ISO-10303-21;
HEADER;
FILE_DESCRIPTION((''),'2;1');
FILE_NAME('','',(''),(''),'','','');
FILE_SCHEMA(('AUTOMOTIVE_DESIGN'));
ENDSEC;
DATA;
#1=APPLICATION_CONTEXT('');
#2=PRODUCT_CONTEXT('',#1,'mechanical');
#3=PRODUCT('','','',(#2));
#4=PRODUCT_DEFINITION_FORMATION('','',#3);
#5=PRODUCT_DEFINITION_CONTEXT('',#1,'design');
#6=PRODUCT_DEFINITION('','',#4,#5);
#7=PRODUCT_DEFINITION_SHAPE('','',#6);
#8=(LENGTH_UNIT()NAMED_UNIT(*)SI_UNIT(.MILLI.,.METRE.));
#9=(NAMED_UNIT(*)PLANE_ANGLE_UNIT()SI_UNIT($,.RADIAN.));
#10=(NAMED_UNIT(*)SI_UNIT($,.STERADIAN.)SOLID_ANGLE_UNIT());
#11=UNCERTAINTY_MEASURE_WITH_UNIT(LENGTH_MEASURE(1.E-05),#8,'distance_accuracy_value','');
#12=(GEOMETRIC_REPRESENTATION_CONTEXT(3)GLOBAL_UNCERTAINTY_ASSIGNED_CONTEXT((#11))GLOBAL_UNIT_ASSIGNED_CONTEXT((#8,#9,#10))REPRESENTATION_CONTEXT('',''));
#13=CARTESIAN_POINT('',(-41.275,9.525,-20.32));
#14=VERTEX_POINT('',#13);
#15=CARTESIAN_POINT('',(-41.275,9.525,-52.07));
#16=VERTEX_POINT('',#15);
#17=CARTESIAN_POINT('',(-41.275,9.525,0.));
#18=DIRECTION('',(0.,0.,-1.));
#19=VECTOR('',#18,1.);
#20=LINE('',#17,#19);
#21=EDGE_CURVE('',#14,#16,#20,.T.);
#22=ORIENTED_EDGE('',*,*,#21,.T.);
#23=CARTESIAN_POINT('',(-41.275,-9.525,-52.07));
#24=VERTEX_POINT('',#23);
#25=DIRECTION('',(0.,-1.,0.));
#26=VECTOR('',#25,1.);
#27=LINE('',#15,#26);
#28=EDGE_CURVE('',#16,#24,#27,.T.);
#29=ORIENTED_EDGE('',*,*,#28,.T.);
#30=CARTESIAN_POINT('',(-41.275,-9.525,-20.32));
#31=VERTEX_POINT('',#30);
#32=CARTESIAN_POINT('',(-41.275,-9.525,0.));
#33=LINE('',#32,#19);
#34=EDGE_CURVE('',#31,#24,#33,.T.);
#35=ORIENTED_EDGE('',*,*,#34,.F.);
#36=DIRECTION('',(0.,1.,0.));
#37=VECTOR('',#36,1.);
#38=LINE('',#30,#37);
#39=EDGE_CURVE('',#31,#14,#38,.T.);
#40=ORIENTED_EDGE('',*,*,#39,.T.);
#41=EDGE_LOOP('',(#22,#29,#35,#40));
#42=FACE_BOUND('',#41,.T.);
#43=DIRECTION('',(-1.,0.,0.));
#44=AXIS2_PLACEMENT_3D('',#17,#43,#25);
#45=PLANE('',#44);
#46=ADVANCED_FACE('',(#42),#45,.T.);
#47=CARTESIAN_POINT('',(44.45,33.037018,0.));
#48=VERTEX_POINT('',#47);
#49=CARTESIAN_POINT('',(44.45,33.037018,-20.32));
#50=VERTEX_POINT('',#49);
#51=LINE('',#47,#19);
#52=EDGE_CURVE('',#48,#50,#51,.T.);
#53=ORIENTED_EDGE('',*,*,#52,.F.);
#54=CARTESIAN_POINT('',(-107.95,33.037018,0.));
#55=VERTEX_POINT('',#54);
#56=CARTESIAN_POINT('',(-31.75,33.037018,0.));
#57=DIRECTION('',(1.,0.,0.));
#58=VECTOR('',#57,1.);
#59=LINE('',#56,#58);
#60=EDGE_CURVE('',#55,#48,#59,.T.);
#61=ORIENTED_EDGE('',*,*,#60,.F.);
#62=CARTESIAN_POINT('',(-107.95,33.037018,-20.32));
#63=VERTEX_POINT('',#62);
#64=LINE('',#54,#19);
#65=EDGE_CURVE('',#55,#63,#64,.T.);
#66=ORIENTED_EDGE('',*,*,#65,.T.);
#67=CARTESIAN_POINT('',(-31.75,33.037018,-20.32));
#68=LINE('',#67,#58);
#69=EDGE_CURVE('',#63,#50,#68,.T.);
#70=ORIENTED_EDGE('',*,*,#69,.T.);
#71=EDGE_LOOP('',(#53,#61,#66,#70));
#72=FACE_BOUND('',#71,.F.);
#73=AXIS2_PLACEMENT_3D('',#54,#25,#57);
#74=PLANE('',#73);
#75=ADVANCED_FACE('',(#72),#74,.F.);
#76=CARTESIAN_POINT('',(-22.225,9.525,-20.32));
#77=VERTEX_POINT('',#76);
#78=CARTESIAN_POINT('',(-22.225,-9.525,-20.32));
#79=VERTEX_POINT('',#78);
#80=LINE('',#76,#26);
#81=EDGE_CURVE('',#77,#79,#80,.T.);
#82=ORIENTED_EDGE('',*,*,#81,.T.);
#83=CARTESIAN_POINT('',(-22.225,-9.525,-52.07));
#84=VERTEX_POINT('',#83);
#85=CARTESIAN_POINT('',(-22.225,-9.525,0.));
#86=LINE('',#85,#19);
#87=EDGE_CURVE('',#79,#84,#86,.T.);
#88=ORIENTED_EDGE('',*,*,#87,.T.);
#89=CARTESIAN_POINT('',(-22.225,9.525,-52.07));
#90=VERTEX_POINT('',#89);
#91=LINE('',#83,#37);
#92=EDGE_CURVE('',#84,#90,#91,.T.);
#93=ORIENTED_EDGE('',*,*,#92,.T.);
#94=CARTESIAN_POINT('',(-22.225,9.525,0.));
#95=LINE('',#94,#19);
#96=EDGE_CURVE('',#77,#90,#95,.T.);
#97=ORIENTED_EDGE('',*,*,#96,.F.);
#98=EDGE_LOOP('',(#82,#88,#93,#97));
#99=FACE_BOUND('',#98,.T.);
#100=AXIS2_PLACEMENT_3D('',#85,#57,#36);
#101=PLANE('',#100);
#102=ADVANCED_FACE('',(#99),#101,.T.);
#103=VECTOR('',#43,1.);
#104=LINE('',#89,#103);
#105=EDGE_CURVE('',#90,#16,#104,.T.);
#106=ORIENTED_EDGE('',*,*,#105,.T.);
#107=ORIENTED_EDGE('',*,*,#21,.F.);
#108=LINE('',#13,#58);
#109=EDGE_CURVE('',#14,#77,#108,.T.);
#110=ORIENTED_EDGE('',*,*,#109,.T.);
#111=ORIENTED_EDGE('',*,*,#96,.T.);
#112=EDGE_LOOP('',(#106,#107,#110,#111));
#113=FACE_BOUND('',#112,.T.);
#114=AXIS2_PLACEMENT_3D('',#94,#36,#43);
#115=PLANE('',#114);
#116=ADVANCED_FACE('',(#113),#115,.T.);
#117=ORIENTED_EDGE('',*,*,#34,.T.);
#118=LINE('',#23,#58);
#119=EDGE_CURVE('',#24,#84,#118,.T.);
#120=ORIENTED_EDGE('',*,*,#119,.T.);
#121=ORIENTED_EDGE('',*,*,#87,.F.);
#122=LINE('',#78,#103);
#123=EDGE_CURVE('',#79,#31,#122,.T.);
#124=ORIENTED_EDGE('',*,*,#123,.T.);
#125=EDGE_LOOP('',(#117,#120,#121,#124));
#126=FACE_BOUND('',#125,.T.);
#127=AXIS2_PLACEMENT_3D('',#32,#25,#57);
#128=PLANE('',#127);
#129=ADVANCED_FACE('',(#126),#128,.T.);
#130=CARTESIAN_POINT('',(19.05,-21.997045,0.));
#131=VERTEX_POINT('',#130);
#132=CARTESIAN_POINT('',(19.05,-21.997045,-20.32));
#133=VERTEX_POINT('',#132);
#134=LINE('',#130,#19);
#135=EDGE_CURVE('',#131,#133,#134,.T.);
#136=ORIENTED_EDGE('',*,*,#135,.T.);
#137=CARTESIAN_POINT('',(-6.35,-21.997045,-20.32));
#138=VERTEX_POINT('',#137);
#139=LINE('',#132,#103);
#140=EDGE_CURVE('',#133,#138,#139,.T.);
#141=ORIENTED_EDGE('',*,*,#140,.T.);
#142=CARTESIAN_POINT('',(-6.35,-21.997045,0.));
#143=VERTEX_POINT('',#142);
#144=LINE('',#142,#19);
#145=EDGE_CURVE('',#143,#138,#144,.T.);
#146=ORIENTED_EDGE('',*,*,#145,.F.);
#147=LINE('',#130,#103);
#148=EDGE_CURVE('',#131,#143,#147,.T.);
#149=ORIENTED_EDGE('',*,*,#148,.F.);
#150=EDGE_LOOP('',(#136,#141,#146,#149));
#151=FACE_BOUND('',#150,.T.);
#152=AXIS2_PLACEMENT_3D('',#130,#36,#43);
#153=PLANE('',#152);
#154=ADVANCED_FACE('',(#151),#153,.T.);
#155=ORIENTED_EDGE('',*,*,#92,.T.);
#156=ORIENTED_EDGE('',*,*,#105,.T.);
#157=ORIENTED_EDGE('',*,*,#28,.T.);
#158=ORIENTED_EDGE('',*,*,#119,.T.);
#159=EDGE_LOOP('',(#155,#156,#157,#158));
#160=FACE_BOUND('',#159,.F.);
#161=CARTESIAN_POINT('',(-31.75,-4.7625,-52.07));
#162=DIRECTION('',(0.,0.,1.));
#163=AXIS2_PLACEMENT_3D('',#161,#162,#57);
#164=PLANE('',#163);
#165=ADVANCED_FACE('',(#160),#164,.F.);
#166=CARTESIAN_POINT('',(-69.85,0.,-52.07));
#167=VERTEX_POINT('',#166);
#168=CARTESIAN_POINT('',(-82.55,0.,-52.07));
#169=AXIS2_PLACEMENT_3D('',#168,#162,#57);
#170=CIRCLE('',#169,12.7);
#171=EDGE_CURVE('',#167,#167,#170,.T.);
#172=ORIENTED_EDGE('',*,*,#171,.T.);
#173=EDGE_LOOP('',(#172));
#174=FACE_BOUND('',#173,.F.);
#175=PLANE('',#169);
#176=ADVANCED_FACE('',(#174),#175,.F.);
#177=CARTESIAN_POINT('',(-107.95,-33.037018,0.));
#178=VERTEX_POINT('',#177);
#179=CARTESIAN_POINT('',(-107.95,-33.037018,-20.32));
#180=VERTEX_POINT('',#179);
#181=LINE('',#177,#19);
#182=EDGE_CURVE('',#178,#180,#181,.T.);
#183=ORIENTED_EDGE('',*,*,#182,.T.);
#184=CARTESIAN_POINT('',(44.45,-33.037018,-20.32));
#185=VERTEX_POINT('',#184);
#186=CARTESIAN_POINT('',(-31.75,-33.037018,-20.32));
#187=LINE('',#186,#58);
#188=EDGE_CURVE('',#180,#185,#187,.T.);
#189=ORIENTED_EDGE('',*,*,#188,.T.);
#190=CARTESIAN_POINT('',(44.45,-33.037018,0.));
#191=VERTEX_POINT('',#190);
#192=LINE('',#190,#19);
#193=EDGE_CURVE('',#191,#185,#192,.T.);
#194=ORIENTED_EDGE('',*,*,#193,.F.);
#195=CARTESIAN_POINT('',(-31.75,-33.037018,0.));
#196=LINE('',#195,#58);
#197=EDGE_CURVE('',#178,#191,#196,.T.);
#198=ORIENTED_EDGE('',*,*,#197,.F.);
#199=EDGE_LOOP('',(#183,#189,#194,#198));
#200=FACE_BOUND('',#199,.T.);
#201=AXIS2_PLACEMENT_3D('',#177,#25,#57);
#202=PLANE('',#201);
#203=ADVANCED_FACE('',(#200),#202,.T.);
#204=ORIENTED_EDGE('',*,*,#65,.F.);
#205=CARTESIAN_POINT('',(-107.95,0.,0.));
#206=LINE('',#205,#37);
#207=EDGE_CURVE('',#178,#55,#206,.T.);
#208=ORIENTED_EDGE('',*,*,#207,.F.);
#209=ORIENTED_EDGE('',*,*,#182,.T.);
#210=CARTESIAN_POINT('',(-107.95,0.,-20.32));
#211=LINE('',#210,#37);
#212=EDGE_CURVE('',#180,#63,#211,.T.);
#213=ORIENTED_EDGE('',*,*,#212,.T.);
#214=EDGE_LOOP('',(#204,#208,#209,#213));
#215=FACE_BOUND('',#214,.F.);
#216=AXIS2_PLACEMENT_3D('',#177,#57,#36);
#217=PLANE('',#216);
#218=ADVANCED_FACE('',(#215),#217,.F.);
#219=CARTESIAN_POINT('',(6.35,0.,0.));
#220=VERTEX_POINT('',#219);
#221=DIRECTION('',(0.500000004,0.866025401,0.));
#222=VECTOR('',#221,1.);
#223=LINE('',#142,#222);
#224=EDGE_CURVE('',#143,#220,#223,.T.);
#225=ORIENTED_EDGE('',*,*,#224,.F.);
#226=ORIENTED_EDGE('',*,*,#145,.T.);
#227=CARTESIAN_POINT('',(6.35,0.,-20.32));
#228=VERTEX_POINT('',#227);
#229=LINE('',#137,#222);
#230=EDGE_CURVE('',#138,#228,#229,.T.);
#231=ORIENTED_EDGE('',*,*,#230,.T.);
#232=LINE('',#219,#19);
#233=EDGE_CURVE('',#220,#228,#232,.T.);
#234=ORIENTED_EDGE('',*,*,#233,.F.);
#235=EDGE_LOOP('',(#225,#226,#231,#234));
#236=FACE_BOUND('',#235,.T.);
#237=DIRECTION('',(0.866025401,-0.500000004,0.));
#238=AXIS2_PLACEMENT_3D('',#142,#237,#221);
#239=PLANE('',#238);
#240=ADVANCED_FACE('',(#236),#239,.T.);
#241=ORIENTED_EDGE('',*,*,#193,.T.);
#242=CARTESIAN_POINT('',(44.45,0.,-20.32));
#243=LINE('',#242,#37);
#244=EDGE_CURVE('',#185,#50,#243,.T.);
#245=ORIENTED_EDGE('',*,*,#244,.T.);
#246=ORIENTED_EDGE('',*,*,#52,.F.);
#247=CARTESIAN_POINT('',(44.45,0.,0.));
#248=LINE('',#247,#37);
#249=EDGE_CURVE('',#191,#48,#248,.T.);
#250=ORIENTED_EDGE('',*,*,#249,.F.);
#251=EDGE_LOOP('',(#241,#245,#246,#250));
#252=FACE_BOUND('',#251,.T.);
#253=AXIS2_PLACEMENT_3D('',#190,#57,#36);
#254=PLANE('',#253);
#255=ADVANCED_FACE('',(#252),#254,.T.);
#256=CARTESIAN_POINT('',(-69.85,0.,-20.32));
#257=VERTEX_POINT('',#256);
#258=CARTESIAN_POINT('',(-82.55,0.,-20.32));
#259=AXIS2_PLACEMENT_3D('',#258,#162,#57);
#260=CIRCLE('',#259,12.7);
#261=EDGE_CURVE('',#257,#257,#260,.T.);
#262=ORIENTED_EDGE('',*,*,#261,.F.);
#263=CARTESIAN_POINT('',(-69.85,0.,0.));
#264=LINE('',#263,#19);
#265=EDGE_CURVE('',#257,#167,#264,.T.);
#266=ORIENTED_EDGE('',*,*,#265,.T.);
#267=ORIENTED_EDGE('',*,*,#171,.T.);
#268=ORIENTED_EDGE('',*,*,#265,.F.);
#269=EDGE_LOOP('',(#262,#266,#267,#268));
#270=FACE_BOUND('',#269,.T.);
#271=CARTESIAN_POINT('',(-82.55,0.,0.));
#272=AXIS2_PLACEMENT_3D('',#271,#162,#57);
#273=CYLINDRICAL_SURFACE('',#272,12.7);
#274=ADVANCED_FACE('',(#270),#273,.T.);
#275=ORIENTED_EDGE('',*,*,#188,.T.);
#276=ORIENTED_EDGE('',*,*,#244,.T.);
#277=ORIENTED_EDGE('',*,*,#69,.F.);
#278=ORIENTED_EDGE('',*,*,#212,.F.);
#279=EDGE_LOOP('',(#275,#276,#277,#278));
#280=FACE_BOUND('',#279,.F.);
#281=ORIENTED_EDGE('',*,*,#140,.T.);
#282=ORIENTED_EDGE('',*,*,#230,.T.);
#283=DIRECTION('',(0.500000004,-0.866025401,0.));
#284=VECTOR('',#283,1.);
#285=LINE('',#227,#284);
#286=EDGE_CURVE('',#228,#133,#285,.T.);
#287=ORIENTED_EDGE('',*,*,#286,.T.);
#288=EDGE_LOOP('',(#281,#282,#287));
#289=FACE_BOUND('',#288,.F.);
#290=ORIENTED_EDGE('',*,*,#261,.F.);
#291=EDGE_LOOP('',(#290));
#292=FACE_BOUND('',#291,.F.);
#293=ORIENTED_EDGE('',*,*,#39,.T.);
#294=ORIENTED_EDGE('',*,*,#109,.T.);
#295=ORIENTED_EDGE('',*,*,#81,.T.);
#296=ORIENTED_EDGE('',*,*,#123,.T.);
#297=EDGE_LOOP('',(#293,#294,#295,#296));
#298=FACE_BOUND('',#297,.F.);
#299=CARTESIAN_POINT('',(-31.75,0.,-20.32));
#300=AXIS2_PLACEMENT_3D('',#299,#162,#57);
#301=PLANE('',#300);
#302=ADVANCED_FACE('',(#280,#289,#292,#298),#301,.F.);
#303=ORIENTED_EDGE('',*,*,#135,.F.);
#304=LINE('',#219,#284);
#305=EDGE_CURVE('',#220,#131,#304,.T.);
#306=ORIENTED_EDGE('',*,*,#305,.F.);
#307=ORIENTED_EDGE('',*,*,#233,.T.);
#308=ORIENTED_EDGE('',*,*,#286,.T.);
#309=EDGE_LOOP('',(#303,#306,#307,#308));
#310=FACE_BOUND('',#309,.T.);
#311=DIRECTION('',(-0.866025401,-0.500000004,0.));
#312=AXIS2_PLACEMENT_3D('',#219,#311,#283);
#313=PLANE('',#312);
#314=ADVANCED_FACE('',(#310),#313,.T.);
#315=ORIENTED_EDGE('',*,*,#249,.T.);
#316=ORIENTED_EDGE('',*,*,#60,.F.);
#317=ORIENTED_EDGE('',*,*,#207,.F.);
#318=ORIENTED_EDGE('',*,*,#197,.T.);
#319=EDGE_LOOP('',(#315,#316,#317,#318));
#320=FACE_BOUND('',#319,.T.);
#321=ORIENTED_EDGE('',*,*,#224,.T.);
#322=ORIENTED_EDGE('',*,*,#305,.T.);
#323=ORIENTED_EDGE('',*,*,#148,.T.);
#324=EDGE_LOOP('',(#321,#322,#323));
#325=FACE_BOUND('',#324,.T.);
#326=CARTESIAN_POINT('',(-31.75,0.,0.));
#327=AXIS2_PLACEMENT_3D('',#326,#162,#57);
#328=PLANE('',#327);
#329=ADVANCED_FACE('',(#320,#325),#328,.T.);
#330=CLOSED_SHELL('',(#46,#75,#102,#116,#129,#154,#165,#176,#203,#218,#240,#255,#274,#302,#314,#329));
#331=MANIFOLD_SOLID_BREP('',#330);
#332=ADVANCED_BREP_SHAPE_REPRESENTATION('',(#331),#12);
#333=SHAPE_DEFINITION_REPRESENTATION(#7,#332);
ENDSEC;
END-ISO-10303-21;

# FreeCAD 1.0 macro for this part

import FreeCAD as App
import Part
import Sketcher

V = App.Vector
Q = App.Units.Quantity

doc = App.newDocument("Part")
body = doc.addObject("PartDesign::Body", "Body")

# Sketch on XY plane
sketch1 = doc.addObject("Sketcher::SketchObject", "Sketch")
body.addObject(sketch1)
sketch1.AttachmentSupport = (doc.XY_Plane, [""])
sketch1.MapMode = "FlatFace"
sketch1.addGeometry([
    Part.LineSegment(V(-108, 33, 0), V(-108, -33, 0)),  # 0
    Part.LineSegment(V(-108, -33, 0), V(44, -33, 0)),  # 1
    Part.LineSegment(V(44, -33, 0), V(44, 33, 0)),  # 2
    Part.LineSegment(V(44, 33, 0), V(-108, 33, 0)),  # 3
    Part.LineSegment(V(19, -22, 0), V(-6, -22, 0)),  # 4
    Part.LineSegment(V(-6, -22, 0), V(6, 0, 0)),  # 5
    Part.LineSegment(V(6, 0, 0), V(19, -22, 0)),  # 6
    Part.Circle(V(-83, 0, 0), V(0, 0, 1), 13),  # 7
    Part.LineSegment(V(-41, 10, 0), V(-22, 10, 0)),  # 8
    Part.LineSegment(V(-22, 10, 0), V(-22, -10, 0)),  # 9
    Part.LineSegment(V(-22, -10, 0), V(-41, -10, 0)),  # 10
    Part.LineSegment(V(-41, -10, 0), V(-41, 10, 0)),  # 11
], False)
sketch1.addConstraint([
    Sketcher.Constraint("Coincident", 0, 2, 1, 1),
    Sketcher.Constraint("Coincident", 1, 2, 2, 1),
    Sketcher.Constraint("Coincident", 2, 2, 3, 1),
    Sketcher.Constraint("Coincident", 3, 2, 0, 1),
    Sketcher.Constraint("Coincident", 4, 2, 5, 1),
    Sketcher.Constraint("Coincident", 5, 2, 6, 1),
    Sketcher.Constraint("Coincident", 6, 2, 4, 1),
    Sketcher.Constraint("Coincident", 8, 2, 9, 1),
    Sketcher.Constraint("Coincident", 9, 2, 10, 1),
    Sketcher.Constraint("Coincident", 10, 2, 11, 1),
    Sketcher.Constraint("Coincident", 11, 2, 8, 1),
    Sketcher.Constraint("Vertical", 0),
    Sketcher.Constraint("Horizontal", 1),
    Sketcher.Constraint("Vertical", 2),
    Sketcher.Constraint("Horizontal", 3),
    Sketcher.Constraint("Horizontal", 4),
    Sketcher.Constraint("Horizontal", 8),
    Sketcher.Constraint("Vertical", 9),
    Sketcher.Constraint("Horizontal", 10),
    Sketcher.Constraint("Vertical", 11),
    Sketcher.Constraint("PointOnObject", 7, 3, -1),
    Sketcher.Constraint("PointOnObject", 5, 2, -1),
    Sketcher.Constraint("Equal", 10, 9),
    Sketcher.Constraint("Equal", 5, 6),
    Sketcher.Constraint("Diameter", 7, Q("1 in")),
    Sketcher.Constraint("DistanceX", 1, 1, 1, 2, Q("6 in")),
    Sketcher.Constraint("DistanceX", 4, 2, 4, 1, Q("1 in")),
    Sketcher.Constraint("Distance", 5, Q("1 in")),
    Sketcher.Constraint("DistanceX", 0, 2, 7, 3, Q("1 in")),
    Sketcher.Constraint("DistanceX", 4, 2, 1, 2, Q("2 in")),
    Sketcher.Constraint("DistanceX", 8, 1, 8, 2, Q("0.75 in")),
    Sketcher.Constraint("DistanceX", 7, 3, -1, 1, Q("3.25 in")),
    Sketcher.Constraint("DistanceX", 8, 2, -1, 1, Q("0.875 in")),
    Sketcher.Constraint("DistanceY", -1, 1, 8, 2, Q("0.375 in")),
    Sketcher.Constraint("DistanceY", 0, 2, 0, 1, Q("66.074036 mm")),
    Sketcher.Constraint("DistanceY", 0, 2, -1, 1, Q("33.037018 mm")),
])
pad1 = doc.addObject("PartDesign::Pad", "Pad")
body.addObject(pad1)
pad1.Profile = sketch1
pad1.Length = Q("0.8 in")
pad1.Reversed = True

# Sketch on XY plane
sketch2 = doc.addObject("Sketcher::SketchObject", "Sketch001")
body.addObject(sketch2)
sketch2.AttachmentSupport = (doc.XY_Plane, [""])
sketch2.MapMode = "FlatFace"
sketch2.addGeometry([
    Part.LineSegment(V(-22, -10, 0), V(-22, 10, 0)),  # 0
    Part.LineSegment(V(-22, 10, 0), V(-41, 10, 0)),  # 1
    Part.LineSegment(V(-41, 10, 0), V(-41, -10, 0)),  # 2
    Part.LineSegment(V(-41, -10, 0), V(-22, -10, 0)),  # 3
    Part.Circle(V(-83, 0, 0), V(0, 0, 1), 13),  # 4
], False)
sketch2.addConstraint([
    Sketcher.Constraint("Coincident", 0, 2, 1, 1),
    Sketcher.Constraint("Coincident", 1, 2, 2, 1),
    Sketcher.Constraint("Coincident", 2, 2, 3, 1),
    Sketcher.Constraint("Coincident", 3, 2, 0, 1),
    Sketcher.Constraint("Vertical", 0),
    Sketcher.Constraint("Horizontal", 1),
    Sketcher.Constraint("Vertical", 2),
    Sketcher.Constraint("Horizontal", 3),
    Sketcher.Constraint("PointOnObject", 4, 3, -1),
    Sketcher.Constraint("Equal", 3, 0),
    Sketcher.Constraint("Diameter", 4, Q("1 in")),
    Sketcher.Constraint("DistanceX", 1, 2, 1, 1, Q("0.75 in")),
    Sketcher.Constraint("DistanceX", 4, 3, -1, 1, Q("3.25 in")),
    Sketcher.Constraint("DistanceX", 0, 2, -1, 1, Q("0.875 in")),
    Sketcher.Constraint("DistanceY", -1, 1, 0, 2, Q("0.375 in")),
])
pad2 = doc.addObject("PartDesign::Pad", "Pad001")
body.addObject(pad2)
pad2.Profile = sketch2
pad2.Length = Q("2.05 in")
pad2.Reversed = True

doc.recompute()
